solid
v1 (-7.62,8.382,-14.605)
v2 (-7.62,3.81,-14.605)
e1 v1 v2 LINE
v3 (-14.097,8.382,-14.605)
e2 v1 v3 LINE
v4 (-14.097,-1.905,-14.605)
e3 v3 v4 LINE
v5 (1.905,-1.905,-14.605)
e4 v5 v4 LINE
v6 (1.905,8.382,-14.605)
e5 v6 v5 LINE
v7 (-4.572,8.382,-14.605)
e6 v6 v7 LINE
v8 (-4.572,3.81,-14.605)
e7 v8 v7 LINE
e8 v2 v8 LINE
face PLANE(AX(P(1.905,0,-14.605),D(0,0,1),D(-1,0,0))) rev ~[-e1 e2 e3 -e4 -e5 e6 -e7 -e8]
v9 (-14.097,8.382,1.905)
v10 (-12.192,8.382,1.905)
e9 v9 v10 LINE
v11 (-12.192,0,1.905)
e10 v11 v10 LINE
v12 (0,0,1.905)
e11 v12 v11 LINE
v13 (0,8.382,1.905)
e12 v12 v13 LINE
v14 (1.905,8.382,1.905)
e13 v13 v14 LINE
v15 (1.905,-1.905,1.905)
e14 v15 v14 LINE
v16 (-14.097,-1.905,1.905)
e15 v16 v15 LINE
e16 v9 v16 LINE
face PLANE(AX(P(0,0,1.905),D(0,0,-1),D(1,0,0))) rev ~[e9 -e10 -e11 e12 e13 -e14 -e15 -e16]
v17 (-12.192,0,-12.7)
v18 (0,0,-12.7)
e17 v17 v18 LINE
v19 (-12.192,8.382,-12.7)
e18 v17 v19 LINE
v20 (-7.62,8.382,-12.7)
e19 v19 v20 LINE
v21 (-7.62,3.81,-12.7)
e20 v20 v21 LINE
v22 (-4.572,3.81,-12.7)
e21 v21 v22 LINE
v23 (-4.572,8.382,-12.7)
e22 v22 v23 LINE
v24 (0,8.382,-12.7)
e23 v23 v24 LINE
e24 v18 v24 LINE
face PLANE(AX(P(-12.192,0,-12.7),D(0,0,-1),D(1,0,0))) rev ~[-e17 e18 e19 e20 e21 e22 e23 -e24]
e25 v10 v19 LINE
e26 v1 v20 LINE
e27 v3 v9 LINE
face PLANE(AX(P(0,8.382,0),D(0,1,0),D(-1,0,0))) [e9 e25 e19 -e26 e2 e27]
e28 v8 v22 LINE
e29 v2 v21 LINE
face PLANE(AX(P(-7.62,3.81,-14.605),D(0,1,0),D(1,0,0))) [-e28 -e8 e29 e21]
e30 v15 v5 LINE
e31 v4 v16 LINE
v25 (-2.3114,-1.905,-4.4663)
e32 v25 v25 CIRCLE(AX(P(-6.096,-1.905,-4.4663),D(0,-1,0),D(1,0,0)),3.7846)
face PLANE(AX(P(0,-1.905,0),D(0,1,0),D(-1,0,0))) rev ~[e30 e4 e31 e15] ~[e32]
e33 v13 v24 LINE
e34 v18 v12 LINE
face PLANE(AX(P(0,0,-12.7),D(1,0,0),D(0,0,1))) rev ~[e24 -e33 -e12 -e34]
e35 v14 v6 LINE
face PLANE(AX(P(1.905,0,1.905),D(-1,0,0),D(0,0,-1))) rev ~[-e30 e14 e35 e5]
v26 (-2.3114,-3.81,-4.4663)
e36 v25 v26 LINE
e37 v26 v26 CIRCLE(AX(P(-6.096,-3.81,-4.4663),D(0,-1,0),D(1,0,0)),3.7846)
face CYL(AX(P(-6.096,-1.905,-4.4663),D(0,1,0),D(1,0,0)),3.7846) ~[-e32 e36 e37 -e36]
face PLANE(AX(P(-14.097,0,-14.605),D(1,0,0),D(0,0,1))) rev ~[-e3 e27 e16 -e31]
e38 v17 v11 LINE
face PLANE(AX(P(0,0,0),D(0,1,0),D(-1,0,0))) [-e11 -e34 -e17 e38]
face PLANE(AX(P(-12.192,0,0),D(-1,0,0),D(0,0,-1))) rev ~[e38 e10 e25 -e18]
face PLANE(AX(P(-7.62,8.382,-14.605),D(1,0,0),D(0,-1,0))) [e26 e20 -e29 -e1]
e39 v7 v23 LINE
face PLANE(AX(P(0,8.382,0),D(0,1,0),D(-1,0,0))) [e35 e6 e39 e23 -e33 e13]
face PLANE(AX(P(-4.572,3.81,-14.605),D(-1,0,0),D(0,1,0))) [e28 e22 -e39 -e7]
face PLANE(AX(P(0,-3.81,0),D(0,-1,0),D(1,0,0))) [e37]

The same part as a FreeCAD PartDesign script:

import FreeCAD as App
import Part
import Sketcher
from FreeCAD import Vector
Q = App.Units.Quantity


def add_polygon(sketch, points):
    """Adds a closed chain of lines whose ends are joined by coincident constraints."""
    first, n = sketch.GeometryCount, len(points)
    for a, b in zip(points, points[1:] + points[:1]):
        sketch.addGeometry(Part.LineSegment(App.Vector(*a, 0), App.Vector(*b, 0)), False)
    for i in range(n):
        sketch.addConstraint(Sketcher.Constraint("Coincident", first + i, 2, first + (i + 1) % n, 1))

doc = App.newDocument("Part")
body = doc.addObject("PartDesign::Body", "Body")

sketch1 = body.newObject("Sketcher::SketchObject", "Sketch")
sketch1.AttachmentSupport = (doc.getObject("XZ_Plane"), [""])
sketch1.MapMode = "FlatFace"
add_polygon(sketch1, [(0, -12.7), (0, 1.9), (1.9, 1.9), (1.9, -14.6), (-14.1, -14.6), (-14.1, 1.9), (-12.2, 1.9), (-12.2, -12.7)])
sketch1.addConstraint(Sketcher.Constraint("Vertical", 0))
sketch1.addConstraint(Sketcher.Constraint("Horizontal", 1))
sketch1.addConstraint(Sketcher.Constraint("Vertical", 2))
sketch1.addConstraint(Sketcher.Constraint("Horizontal", 3))
sketch1.addConstraint(Sketcher.Constraint("Vertical", 4))
sketch1.addConstraint(Sketcher.Constraint("Horizontal", 5))
sketch1.addConstraint(Sketcher.Constraint("Vertical", 6))
sketch1.addConstraint(Sketcher.Constraint("Horizontal", 7))
sketch1.addConstraint(Sketcher.Constraint("PointOnObject", 0, 2, -2))
sketch1.addConstraint(Sketcher.Constraint("Horizontal", 1, 2, 4, 2))
sketch1.addConstraint(Sketcher.Constraint("Equal", 1, 5))
sketch1.addConstraint(Sketcher.Constraint("DistanceX", 7, 1, 7, 2, Q("0.48 in")))
sketch1.addConstraint(Sketcher.Constraint("DistanceY", 6, 2, -1, 1, Q("0.5 in")))
sketch1.addConstraint(Sketcher.Constraint("DistanceX", 1, 1, 1, 2, Q("0.075 in")))
sketch1.addConstraint(Sketcher.Constraint("DistanceY", -1, 1, 0, 2, Q("0.075 in")))
sketch1.addConstraint(Sketcher.Constraint("DistanceY", 3, 2, 6, 2, Q("0.075 in")))
pad1 = body.newObject("PartDesign::Pad", "Pad")
pad1.Profile = sketch1
pad1.Length = Q("0.33 in")
pad1.Reversed = True

sketch2 = body.newObject("Sketcher::SketchObject", "Sketch001")
sketch2.AttachmentSupport = (doc.getObject("XZ_Plane"), [""])
sketch2.MapMode = "FlatFace"
add_polygon(sketch2, [(2, 2), (2, -15), (-14, -15), (-14, 2)])
sketch2.addConstraint(Sketcher.Constraint("Vertical", 0))
sketch2.addConstraint(Sketcher.Constraint("Horizontal", 1))
sketch2.addConstraint(Sketcher.Constraint("Vertical", 2))
sketch2.addConstraint(Sketcher.Constraint("Horizontal", 3))
sketch2.addConstraint(Sketcher.Constraint("DistanceX", -1, 1, 0, 2, Q("0.075 in")))
sketch2.addConstraint(Sketcher.Constraint("DistanceY", -1, 1, 2, 2, Q("0.075 in")))
sketch2.addConstraint(Sketcher.Constraint("DistanceX", 1, 2, 1, 1, Q("0.63 in")))
sketch2.addConstraint(Sketcher.Constraint("DistanceY", 0, 2, 0, 1, Q("0.65 in")))
pad2 = body.newObject("PartDesign::Pad", "Pad001")
pad2.Profile = sketch2
pad2.Length = Q("0.075 in")

sketch3 = body.newObject("Sketcher::SketchObject", "Sketch002")
sketch3.AttachmentSupport = (doc.getObject("XZ_Plane"), [""])
sketch3.MapMode = "FlatFace"
sketch3.AttachmentOffset = App.Placement(Vector(0, 0, 0.075 * 25.4), App.Rotation())
sketch3.addGeometry(Part.Circle(Vector(-6.1, -4.5, 0), Vector(0, 0, 1), 3.8), False)
sketch3.addConstraint(Sketcher.Constraint("Diameter", 0, Q("0.298 in")))
sketch3.addConstraint(Sketcher.Constraint("DistanceX", 0, 3, -1, 1, Q("0.24 in")))
sketch3.addConstraint(Sketcher.Constraint("DistanceY", 0, 3, -1, 1, 4.4663))
pad3 = body.newObject("PartDesign::Pad", "Pad002")
pad3.Profile = sketch3
pad3.Length = Q("0.075 in")

sketch4 = body.newObject("Sketcher::SketchObject", "Sketch003")
sketch4.AttachmentSupport = (doc.getObject("XY_Plane"), [""])
sketch4.MapMode = "FlatFace"
sketch4.AttachmentOffset = App.Placement(Vector(0, 0, -0.575 * 25.4), App.Rotation())
add_polygon(sketch4, [(-7.6, 8.4), (-4.6, 8.4), (-4.6, 3.8), (-7.6, 3.8)])
sketch4.addConstraint(Sketcher.Constraint("Horizontal", 0))
sketch4.addConstraint(Sketcher.Constraint("Vertical", 1))
sketch4.addConstraint(Sketcher.Constraint("Horizontal", 2))
sketch4.addConstraint(Sketcher.Constraint("Vertical", 3))
sketch4.addConstraint(Sketcher.Constraint("DistanceX", 0, 1, 0, 2, Q("0.12 in")))
sketch4.addConstraint(Sketcher.Constraint("DistanceY", 1, 2, 1, 1, Q("0.18 in")))
sketch4.addConstraint(Sketcher.Constraint("DistanceX", 0, 2, -1, 1, Q("0.18 in")))
sketch4.addConstraint(Sketcher.Constraint("DistanceY", -1, 1, 1, 2, Q("0.15 in")))
pocket1 = body.newObject("PartDesign::Pocket", "Pocket")
pocket1.Profile = sketch4
pocket1.Length = Q("0.075 in")
pocket1.Reversed = True

doc.recompute()
